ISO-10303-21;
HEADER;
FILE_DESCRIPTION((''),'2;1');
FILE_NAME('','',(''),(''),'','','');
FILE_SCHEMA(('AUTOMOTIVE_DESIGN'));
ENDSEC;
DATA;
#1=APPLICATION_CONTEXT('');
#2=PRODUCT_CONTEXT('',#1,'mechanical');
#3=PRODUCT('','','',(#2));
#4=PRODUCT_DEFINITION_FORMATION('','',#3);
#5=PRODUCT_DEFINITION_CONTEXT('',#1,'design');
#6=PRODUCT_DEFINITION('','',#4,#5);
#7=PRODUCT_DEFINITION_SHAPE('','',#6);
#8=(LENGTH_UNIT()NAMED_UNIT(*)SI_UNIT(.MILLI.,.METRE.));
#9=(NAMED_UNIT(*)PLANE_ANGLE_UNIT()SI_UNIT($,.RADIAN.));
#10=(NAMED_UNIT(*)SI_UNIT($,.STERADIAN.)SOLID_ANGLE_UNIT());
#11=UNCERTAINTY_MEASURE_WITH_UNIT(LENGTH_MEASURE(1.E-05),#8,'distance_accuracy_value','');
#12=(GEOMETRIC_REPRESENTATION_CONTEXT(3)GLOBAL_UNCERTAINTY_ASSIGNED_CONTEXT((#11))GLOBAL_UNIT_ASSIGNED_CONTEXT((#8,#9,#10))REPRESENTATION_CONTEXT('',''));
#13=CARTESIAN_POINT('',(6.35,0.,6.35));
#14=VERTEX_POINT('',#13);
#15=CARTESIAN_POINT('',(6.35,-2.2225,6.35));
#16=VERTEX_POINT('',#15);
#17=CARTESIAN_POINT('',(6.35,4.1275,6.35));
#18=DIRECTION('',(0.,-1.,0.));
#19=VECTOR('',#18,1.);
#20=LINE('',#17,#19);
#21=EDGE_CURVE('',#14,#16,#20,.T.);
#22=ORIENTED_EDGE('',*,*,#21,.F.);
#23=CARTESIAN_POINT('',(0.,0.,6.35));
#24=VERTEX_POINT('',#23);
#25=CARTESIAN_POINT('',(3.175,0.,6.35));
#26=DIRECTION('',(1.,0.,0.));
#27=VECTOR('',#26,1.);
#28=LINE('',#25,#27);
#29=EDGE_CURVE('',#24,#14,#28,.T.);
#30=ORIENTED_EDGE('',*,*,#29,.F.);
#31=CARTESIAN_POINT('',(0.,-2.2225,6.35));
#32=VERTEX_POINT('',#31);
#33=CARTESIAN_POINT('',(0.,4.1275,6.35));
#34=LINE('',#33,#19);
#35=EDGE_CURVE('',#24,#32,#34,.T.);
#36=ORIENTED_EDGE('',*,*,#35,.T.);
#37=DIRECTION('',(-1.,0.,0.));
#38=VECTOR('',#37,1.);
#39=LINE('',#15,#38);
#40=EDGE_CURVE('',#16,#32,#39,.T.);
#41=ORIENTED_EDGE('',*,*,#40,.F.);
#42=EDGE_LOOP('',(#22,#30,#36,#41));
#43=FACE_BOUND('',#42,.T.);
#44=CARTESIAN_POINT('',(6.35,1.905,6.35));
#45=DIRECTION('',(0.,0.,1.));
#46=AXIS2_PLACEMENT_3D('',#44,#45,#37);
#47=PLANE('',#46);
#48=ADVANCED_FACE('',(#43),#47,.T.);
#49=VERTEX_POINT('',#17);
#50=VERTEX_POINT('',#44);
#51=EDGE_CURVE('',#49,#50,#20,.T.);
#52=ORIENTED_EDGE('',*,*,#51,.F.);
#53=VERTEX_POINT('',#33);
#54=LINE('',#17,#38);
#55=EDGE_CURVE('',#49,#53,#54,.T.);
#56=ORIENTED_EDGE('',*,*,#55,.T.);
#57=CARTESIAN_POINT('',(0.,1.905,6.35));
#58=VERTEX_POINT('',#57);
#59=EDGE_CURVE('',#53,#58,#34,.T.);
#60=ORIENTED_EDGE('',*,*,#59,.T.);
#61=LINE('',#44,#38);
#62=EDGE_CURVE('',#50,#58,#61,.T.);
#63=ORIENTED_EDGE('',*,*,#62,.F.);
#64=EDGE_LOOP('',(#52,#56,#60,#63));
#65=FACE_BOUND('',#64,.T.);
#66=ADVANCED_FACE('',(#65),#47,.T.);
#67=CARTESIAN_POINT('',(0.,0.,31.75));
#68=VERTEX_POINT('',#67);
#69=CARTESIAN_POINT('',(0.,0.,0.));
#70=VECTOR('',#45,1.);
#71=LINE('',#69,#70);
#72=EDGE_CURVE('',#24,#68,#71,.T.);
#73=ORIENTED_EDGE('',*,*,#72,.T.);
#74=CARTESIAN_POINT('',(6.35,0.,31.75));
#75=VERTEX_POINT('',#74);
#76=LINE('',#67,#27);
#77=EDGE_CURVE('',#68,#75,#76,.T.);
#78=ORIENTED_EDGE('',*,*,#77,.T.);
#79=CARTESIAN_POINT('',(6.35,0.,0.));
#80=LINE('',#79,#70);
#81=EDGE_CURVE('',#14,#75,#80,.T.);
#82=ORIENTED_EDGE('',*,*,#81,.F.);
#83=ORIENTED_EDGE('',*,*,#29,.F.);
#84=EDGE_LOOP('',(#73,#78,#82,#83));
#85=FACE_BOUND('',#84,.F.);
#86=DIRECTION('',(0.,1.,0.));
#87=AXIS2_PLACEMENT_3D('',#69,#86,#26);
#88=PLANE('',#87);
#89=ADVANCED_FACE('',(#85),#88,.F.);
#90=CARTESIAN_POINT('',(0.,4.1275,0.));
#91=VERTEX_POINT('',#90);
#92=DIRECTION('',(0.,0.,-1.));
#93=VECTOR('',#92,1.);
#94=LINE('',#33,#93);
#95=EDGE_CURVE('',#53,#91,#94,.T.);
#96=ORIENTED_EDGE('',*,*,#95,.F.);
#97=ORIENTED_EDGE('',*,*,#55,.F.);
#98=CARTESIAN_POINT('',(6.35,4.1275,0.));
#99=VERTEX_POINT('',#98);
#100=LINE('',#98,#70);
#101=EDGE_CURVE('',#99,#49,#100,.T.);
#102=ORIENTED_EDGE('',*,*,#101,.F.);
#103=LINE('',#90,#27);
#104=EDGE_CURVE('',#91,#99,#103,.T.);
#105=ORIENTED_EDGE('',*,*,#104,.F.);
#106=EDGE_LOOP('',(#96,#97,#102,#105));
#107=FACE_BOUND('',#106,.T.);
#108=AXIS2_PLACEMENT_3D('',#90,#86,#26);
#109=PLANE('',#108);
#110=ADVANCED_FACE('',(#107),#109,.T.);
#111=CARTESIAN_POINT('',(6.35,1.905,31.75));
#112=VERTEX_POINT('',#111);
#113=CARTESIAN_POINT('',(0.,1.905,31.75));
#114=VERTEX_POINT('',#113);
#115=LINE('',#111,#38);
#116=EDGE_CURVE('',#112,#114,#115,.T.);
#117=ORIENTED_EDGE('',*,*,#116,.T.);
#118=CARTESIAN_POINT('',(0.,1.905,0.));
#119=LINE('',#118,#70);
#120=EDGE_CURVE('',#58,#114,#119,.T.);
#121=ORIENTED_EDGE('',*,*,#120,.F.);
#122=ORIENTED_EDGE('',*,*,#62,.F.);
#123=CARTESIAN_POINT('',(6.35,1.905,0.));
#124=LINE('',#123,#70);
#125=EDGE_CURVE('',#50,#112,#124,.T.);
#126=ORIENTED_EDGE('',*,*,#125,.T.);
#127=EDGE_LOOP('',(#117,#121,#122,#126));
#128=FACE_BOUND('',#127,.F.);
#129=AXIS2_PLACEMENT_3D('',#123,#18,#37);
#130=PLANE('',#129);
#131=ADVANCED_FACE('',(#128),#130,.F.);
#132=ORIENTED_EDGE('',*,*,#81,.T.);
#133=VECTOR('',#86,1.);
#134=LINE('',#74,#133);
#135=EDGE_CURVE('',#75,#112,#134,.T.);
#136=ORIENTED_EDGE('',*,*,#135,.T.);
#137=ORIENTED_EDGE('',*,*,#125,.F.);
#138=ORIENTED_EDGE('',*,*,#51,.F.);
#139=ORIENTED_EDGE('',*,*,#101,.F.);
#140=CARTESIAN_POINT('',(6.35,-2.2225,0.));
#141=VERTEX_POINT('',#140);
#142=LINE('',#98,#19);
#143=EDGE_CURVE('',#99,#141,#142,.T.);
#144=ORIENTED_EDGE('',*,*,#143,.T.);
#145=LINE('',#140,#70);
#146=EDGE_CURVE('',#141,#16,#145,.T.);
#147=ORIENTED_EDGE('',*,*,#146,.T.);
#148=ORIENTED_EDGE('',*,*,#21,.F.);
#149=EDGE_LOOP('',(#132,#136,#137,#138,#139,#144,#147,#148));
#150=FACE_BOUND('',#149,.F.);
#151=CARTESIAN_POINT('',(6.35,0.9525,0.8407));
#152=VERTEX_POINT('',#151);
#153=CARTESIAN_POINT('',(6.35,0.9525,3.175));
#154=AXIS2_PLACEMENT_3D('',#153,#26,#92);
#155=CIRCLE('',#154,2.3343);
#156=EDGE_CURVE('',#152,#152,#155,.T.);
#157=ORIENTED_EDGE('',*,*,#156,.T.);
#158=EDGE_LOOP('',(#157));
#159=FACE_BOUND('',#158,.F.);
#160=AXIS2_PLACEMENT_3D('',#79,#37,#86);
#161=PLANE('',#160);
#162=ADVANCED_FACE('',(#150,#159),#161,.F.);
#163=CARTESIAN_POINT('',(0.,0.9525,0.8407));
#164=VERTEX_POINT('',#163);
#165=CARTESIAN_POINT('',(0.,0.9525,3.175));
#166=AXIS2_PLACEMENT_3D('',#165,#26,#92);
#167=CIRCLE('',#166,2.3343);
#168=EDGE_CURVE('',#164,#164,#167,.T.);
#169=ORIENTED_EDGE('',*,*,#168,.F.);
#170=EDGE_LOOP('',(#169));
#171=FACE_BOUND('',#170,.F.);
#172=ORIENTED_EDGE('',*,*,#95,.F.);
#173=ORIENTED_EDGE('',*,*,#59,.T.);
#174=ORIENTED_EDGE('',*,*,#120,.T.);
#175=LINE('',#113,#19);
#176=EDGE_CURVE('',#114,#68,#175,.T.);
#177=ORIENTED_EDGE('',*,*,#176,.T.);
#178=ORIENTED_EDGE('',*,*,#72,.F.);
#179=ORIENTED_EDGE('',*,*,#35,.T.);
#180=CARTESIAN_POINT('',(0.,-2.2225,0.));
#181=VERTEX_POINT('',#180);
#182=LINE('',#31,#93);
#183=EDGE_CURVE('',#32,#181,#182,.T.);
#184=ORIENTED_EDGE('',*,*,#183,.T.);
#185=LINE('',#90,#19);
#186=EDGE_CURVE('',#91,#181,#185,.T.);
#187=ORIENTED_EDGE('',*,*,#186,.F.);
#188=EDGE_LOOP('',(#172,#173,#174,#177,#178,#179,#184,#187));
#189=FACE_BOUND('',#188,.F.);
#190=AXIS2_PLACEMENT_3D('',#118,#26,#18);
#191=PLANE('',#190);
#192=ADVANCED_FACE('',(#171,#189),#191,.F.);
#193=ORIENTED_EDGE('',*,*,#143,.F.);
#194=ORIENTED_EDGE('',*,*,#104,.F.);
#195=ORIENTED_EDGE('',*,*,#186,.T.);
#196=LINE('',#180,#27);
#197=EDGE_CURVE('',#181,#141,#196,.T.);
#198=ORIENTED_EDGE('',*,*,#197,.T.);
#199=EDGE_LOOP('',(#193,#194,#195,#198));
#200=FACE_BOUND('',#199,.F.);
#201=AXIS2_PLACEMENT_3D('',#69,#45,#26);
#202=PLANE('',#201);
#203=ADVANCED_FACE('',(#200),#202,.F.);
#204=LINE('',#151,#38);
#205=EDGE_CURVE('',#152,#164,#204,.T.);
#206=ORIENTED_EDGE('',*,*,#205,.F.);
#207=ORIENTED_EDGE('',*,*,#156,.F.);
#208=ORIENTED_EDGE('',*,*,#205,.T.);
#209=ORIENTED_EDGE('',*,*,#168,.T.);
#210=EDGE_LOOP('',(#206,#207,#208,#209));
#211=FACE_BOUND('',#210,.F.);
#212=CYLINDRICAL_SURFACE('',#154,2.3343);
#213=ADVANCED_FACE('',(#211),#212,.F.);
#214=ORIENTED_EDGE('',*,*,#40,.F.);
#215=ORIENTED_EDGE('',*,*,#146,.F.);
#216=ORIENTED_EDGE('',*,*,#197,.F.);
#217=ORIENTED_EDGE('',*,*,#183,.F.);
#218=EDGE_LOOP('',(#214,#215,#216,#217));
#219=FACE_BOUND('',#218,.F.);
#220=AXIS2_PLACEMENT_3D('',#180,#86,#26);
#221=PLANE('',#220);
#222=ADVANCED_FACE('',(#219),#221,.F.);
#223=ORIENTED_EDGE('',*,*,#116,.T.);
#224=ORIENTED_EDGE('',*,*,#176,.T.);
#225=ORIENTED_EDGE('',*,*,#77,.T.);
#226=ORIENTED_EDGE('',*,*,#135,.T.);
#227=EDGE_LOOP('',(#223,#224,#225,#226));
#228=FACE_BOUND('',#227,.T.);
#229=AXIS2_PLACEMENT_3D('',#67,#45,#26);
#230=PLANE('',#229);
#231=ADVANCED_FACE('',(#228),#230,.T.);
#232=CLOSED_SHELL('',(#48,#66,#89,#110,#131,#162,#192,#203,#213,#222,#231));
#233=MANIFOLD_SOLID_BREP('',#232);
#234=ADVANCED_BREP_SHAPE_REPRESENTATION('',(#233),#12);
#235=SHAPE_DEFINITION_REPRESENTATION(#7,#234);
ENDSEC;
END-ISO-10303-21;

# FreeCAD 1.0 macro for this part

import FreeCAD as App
import Part
import Sketcher

V = App.Vector
Q = App.Units.Quantity

doc = App.newDocument("Part")
body = doc.addObject("PartDesign::Body", "Body")

sketch1 = body.newObject("Sketcher::SketchObject", "Sketch")
sketch1.AttachmentSupport = (doc.getObject("XY_Plane"), [""])
sketch1.MapMode = "FlatFace"
sketch1.addGeometry([
    Part.LineSegment(V(0, 1.9, 0), V(0, 0, 0)),
    Part.LineSegment(V(0, 0, 0), V(6.3, 0, 0)),
    Part.LineSegment(V(6.3, 0, 0), V(6.3, 1.9, 0)),
    Part.LineSegment(V(6.3, 1.9, 0), V(0, 1.9, 0)),
], False)
sketch1.addConstraint([
    Sketcher.Constraint("Coincident", 0, 2, 1, 1),
    Sketcher.Constraint("Coincident", 1, 2, 2, 1),
    Sketcher.Constraint("Coincident", 2, 2, 3, 1),
    Sketcher.Constraint("Coincident", 3, 2, 0, 1),
    Sketcher.Constraint("Vertical", 0),
    Sketcher.Constraint("Horizontal", 1),
    Sketcher.Constraint("Vertical", 2),
    Sketcher.Constraint("Horizontal", 3),
    Sketcher.Constraint("Coincident", 0, 2, -1, 1),
    Sketcher.Constraint("DistanceX", 1, 1, 1, 2, Q("0.25 in")),
    Sketcher.Constraint("DistanceY", 0, 2, 0, 1, Q("0.075 in")),
])
pad1 = body.newObject("PartDesign::Pad", "Pad")
pad1.Profile = sketch1
pad1.Length = Q("1.25 in")

sketch2 = body.newObject("Sketcher::SketchObject", "Sketch001")
sketch2.AttachmentSupport = (doc.getObject("XZ_Plane"), [""])
sketch2.MapMode = "FlatFace"
sketch2.AttachmentOffset = App.Placement(V(0, 0, -0.075 * 25.4), App.Rotation())
sketch2.addGeometry([
    Part.LineSegment(V(6, 6, 0), V(6, 0, 0)),
    Part.LineSegment(V(6, 0, 0), V(0, 0, 0)),
    Part.LineSegment(V(0, 0, 0), V(0, 6, 0)),
    Part.LineSegment(V(0, 6, 0), V(6, 6, 0)),
], False)
sketch2.addConstraint([
    Sketcher.Constraint("Coincident", 0, 2, 1, 1),
    Sketcher.Constraint("Coincident", 1, 2, 2, 1),
    Sketcher.Constraint("Coincident", 2, 2, 3, 1),
    Sketcher.Constraint("Coincident", 3, 2, 0, 1),
    Sketcher.Constraint("Vertical", 0),
    Sketcher.Constraint("Horizontal", 1),
    Sketcher.Constraint("Vertical", 2),
    Sketcher.Constraint("Horizontal", 3),
    Sketcher.Constraint("Coincident", 1, 2, -1, 1),
    Sketcher.Constraint("Equal", 3, 0),
    Sketcher.Constraint("DistanceX", 1, 2, 1, 1, Q("0.25 in")),
])
pad2 = body.newObject("PartDesign::Pad", "Pad001")
pad2.Profile = sketch2
pad2.Type = "TwoLengths"
pad2.Length = Q("0.0875 in")
pad2.Length2 = Q("0.1625 in")
pad2.Reversed = True

sketch3 = body.newObject("Sketcher::SketchObject", "Sketch002")
sketch3.AttachmentSupport = (doc.getObject("YZ_Plane"), [""])
sketch3.MapMode = "FlatFace"
sketch3.AttachmentOffset = App.Placement(V(0, 0, 0.25 * 25.4), App.Rotation())
sketch3.addGeometry(Part.Circle(V(1, 3.2, 0), V(0, 0, 1), 2.3), False)
sketch3.addConstraint([
    Sketcher.Constraint("Diameter", 0, Q("0.1838 in")),
    Sketcher.Constraint("DistanceY", -1, 1, 0, 3, Q("0.125 in")),
    Sketcher.Constraint("DistanceX", -1, 1, 0, 3, Q("0.0375 in")),
])
pocket1 = body.newObject("PartDesign::Pocket", "Pocket")
pocket1.Profile = sketch3
pocket1.Type = "ThroughAll"

doc.recompute()
